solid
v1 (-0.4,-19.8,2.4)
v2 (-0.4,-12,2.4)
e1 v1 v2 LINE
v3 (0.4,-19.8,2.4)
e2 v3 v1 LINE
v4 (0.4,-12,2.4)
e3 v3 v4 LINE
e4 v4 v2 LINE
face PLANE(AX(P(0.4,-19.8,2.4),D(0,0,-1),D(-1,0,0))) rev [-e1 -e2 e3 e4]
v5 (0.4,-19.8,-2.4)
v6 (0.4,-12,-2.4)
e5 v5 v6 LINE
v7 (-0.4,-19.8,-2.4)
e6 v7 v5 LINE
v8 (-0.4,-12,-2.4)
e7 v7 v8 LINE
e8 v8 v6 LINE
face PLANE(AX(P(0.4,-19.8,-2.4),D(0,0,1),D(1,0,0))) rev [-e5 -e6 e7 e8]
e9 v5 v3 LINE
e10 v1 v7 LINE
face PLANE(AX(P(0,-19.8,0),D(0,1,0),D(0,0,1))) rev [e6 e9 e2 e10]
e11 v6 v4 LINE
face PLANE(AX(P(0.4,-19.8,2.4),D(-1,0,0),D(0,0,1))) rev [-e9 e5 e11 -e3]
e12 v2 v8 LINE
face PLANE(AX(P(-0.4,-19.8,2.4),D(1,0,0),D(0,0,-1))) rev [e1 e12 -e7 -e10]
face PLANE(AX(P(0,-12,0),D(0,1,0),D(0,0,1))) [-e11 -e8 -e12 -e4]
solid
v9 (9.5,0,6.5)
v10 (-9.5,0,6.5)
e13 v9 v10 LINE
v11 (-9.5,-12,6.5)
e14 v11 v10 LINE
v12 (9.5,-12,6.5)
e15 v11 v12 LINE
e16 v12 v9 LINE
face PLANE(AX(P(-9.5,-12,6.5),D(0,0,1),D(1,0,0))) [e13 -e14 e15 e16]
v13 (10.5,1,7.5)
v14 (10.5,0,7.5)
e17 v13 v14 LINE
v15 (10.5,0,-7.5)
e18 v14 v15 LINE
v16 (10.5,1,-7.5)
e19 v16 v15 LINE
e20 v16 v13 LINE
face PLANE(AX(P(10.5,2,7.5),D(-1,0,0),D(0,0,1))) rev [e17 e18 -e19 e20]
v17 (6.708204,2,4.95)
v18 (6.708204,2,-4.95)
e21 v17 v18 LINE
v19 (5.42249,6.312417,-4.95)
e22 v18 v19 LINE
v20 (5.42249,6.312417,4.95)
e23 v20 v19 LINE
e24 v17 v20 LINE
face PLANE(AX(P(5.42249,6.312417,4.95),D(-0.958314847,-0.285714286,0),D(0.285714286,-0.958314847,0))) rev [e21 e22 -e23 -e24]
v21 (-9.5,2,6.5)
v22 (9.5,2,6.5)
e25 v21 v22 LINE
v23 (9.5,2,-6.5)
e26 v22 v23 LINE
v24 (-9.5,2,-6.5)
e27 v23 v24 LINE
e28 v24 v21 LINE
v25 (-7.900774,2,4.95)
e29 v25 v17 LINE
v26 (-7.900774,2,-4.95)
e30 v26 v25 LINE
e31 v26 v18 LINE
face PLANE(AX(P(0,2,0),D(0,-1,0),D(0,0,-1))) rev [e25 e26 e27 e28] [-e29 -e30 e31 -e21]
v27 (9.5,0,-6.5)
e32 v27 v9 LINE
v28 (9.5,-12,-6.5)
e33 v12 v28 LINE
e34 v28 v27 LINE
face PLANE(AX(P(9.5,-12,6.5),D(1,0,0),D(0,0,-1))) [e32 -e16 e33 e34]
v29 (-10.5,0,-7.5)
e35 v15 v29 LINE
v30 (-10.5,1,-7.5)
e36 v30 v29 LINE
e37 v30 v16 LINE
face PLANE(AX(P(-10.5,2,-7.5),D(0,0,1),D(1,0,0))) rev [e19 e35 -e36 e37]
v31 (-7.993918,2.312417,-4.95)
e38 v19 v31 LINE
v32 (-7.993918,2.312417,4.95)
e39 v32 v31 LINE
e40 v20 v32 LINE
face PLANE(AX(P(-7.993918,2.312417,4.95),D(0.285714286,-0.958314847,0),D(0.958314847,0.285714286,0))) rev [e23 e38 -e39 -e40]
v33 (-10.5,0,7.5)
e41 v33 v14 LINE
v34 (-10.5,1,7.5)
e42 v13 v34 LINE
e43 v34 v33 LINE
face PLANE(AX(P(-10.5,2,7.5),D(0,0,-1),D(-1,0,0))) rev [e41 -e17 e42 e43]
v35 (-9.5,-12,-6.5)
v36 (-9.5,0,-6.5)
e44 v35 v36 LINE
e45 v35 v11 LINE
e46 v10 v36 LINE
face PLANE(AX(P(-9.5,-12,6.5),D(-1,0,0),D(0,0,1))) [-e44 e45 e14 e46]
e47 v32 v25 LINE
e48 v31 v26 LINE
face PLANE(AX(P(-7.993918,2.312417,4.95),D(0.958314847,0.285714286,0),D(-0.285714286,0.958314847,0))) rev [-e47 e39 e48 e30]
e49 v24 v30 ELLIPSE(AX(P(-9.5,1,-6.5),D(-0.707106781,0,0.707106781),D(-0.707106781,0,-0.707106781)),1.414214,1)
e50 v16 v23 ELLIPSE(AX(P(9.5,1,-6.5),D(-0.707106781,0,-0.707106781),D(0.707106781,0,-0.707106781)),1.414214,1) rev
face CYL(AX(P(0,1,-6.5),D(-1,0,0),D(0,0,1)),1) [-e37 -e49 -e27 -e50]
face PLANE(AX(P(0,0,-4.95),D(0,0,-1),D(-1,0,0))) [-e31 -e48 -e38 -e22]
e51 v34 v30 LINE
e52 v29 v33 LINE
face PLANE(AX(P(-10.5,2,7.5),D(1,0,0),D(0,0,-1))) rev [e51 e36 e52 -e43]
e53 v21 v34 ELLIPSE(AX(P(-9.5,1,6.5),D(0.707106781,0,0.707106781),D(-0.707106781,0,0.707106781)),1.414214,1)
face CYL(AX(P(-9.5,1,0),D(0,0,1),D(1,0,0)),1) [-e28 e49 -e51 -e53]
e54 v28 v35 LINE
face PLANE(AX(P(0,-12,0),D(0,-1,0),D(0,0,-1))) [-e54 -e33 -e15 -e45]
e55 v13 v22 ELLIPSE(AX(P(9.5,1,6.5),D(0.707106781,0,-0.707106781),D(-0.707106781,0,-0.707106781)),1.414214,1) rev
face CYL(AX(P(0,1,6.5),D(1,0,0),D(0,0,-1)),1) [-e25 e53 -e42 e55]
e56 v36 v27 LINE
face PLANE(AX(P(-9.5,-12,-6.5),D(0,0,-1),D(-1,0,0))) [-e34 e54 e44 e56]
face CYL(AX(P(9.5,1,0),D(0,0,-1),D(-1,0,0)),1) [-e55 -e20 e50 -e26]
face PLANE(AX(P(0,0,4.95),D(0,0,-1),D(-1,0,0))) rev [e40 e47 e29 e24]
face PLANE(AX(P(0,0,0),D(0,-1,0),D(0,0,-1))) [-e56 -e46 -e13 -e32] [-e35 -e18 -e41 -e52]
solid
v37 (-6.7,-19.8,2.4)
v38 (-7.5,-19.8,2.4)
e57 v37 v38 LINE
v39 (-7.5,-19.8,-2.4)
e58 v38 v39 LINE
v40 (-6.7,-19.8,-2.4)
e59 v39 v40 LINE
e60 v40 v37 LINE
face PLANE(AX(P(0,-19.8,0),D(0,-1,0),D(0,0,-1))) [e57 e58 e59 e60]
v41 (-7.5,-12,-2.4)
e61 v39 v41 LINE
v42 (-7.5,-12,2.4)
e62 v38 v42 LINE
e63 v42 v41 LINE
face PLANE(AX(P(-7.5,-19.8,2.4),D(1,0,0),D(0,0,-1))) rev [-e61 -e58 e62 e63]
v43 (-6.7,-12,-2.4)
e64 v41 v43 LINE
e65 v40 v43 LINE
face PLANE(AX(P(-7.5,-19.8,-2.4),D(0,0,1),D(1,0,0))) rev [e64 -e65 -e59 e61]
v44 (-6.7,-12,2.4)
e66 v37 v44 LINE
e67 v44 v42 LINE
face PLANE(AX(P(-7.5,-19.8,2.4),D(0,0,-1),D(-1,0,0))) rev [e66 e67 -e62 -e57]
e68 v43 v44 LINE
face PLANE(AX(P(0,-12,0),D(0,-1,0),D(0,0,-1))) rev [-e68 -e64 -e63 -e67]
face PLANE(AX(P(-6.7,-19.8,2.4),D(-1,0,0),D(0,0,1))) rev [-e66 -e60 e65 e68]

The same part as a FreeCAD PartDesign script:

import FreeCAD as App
import Part
import Sketcher

V = App.Vector
Q = App.Units.Quantity


def edges_at(feature, points):
    """Names of the edges that pass closest to the given points."""
    edges = feature.Shape.Edges
    near = lambda p: min(range(len(edges)), key=lambda i: edges[i].distToShape(Part.Vertex(*p))[0])
    return sorted({f"Edge{near(p) + 1}" for p in points})


def add_polygon(sketch, points):
    """Adds a closed chain of lines whose ends are joined by coincident constraints."""
    first, n = sketch.GeometryCount, len(points)
    for a, b in zip(points, points[1:] + points[:1]):
        sketch.addGeometry(Part.LineSegment(App.Vector(*a, 0), App.Vector(*b, 0)), False)
    for i in range(n):
        sketch.addConstraint(Sketcher.Constraint("Coincident", first + i, 2, first + (i + 1) % n, 1))

doc = App.newDocument("Part")
params = doc.addObject("Spreadsheet::Sheet", "Params")
for row, (alias, value) in enumerate([
    ("sketch1_width", "21 mm"),
    ("sketch1_height", "15 mm"),
    ("pad1_length", "2 mm"),
    ("sketch2_width", "19 mm"),
    ("sketch2_height", "13 mm"),
    ("pad2_length", "14 mm"),
    ("fillet_radius", "1 mm"),
    ("sketch3_length", "14 mm"),
    ("sketch3_length2", "4.5 mm"),
    ("pad3_length", "9.9 mm"),
    ("sketch4_width", "0.8 mm"),
    ("sketch4_height", "4.8 mm"),
    ("pad4_length", "7.8 mm"),
    ("sketch5_width", "0.8 mm"),
    ("sketch5_height", "4.8 mm"),
    ("pad5_length", "7.8 mm"),
], start=1):
    params.set(f"A{row}", alias)
    params.set(f"B{row}", "=" + value)
    params.setAlias(f"B{row}", alias)

body = doc.addObject("PartDesign::Body", "Body")

# Sketch on XZ plane
sketch1 = body.newObject("Sketcher::SketchObject", "Sketch")
sketch1.AttachmentSupport = (doc.getObject("XZ_Plane"), [""])
sketch1.MapMode = "FlatFace"
add_polygon(sketch1, [(-10.5, -7.5), (-10.5, 7.5), (10.5, 7.5), (10.5, -7.5)])  # lines 0-3
sketch1.addConstraint(Sketcher.Constraint("Vertical", 0))
sketch1.addConstraint(Sketcher.Constraint("Horizontal", 1))
sketch1.addConstraint(Sketcher.Constraint("Vertical", 2))
sketch1.addConstraint(Sketcher.Constraint("Horizontal", 3))
sketch1.addConstraint(Sketcher.Constraint("Symmetric", 0, 2, 2, 2, -1, 1))
sketch1.addConstraint(Sketcher.Constraint("DistanceX", 1, 1, 1, 2, Q("21 mm")))
sketch1.addConstraint(Sketcher.Constraint("DistanceY", 0, 1, 0, 2, Q("15 mm")))
sketch1.setExpression("Constraints[9]", "Params.sketch1_width")
sketch1.setExpression("Constraints[10]", "Params.sketch1_height")
pad1 = body.newObject("PartDesign::Pad", "Pad")
pad1.Profile = sketch1
pad1.setExpression("Length", "Params.pad1_length")
pad1.Reversed = True

# Sketch on XZ plane
sketch2 = body.newObject("Sketcher::SketchObject", "Sketch001")
sketch2.AttachmentSupport = (doc.getObject("XZ_Plane"), [""])
sketch2.MapMode = "FlatFace"
sketch2.AttachmentOffset = App.Placement(V(0, 0, -2), App.Rotation())
add_polygon(sketch2, [(-9.5, -6.5), (-9.5, 6.5), (9.5, 6.5), (9.5, -6.5)])  # lines 0-3
sketch2.addConstraint(Sketcher.Constraint("Vertical", 0))
sketch2.addConstraint(Sketcher.Constraint("Horizontal", 1))
sketch2.addConstraint(Sketcher.Constraint("Vertical", 2))
sketch2.addConstraint(Sketcher.Constraint("Horizontal", 3))
sketch2.addConstraint(Sketcher.Constraint("Symmetric", 0, 2, 2, 2, -1, 1))
sketch2.addConstraint(Sketcher.Constraint("DistanceX", 1, 1, 1, 2, Q("19 mm")))
sketch2.addConstraint(Sketcher.Constraint("DistanceY", 0, 1, 0, 2, Q("13 mm")))
sketch2.setExpression("Constraints[9]", "Params.sketch2_width")
sketch2.setExpression("Constraints[10]", "Params.sketch2_height")
pad2 = body.newObject("PartDesign::Pad", "Pad001")
pad2.Profile = sketch2
pad2.setExpression("Length", "Params.pad2_length")
doc.recompute()

fillet = body.newObject("PartDesign::Fillet", "Fillet")
fillet.Base = (pad2, edges_at(pad2, [
    (-10.5, 2, 0),
    (0, 2, 7.5),
    (10.5, 2, 0),
    (0, 2, -7.5),
]))
fillet.setExpression("Radius", "Params.fillet_radius")

# Sketch on XY plane
sketch3 = body.newObject("Sketcher::SketchObject", "Sketch002")
sketch3.AttachmentSupport = (doc.getObject("XY_Plane"), [""])
sketch3.MapMode = "FlatFace"
add_polygon(sketch3, [(-7.993918, 2.312417), (-6.708204, -2), (6.708204, 2), (5.42249, 6.312417)])  # lines 0-3
sketch3.addConstraint(Sketcher.Constraint("Symmetric", 0, 2, 1, 2, -1, 1))
sketch3.addConstraint(Sketcher.Constraint("Perpendicular", 0, 1))
sketch3.addConstraint(Sketcher.Constraint("Perpendicular", 1, 2))
sketch3.addConstraint(Sketcher.Constraint("Perpendicular", 2, 3))
sketch3.addConstraint(Sketcher.Constraint("Distance", 1, Q("14 mm")))
sketch3.addConstraint(Sketcher.Constraint("DistanceY", 0, 2, -1, 1, Q("2 mm")))
sketch3.addConstraint(Sketcher.Constraint("Distance", 0, Q("4.5 mm")))
sketch3.setExpression("Constraints[8]", "Params.sketch3_length")
sketch3.setExpression("Constraints[10]", "Params.sketch3_length2")
pad3 = body.newObject("PartDesign::Pad", "Pad002")
pad3.Profile = sketch3
pad3.setExpression("Length", "Params.pad3_length")
pad3.Midplane = True
body2 = doc.addObject("PartDesign::Body", "Body001")

# Sketch on XZ plane
sketch4 = body2.newObject("Sketcher::SketchObject", "Sketch003")
sketch4.AttachmentSupport = (doc.getObject("XZ_Plane001"), [""])
sketch4.MapMode = "FlatFace"
sketch4.AttachmentOffset = App.Placement(V(0, 0, 12), App.Rotation())
add_polygon(sketch4, [(-7.5, 2.4), (-7.5, -2.4), (-6.7, -2.4), (-6.7, 2.4)])  # lines 0-3
sketch4.addConstraint(Sketcher.Constraint("Vertical", 0))
sketch4.addConstraint(Sketcher.Constraint("Horizontal", 1))
sketch4.addConstraint(Sketcher.Constraint("Vertical", 2))
sketch4.addConstraint(Sketcher.Constraint("Horizontal", 3))
sketch4.addConstraint(Sketcher.Constraint("DistanceX", 1, 1, 1, 2, Q("0.8 mm")))
sketch4.addConstraint(Sketcher.Constraint("DistanceY", 0, 2, 0, 1, Q("4.8 mm")))
sketch4.addConstraint(Sketcher.Constraint("DistanceX", 0, 2, -1, 1, Q("7.5 mm")))
sketch4.addConstraint(Sketcher.Constraint("DistanceY", 0, 2, -1, 1, Q("2.4 mm")))
sketch4.setExpression("Constraints[8]", "Params.sketch4_width")
sketch4.setExpression("Constraints[9]", "Params.sketch4_height")
pad4 = body2.newObject("PartDesign::Pad", "Pad003")
pad4.Profile = sketch4
pad4.setExpression("Length", "Params.pad4_length")
body3 = doc.addObject("PartDesign::Body", "Body002")

# Sketch on XZ plane
sketch5 = body3.newObject("Sketcher::SketchObject", "Sketch004")
sketch5.AttachmentSupport = (doc.getObject("XZ_Plane002"), [""])
sketch5.MapMode = "FlatFace"
sketch5.AttachmentOffset = App.Placement(V(0, 0, 12), App.Rotation())
add_polygon(sketch5, [(-0.4, 2.4), (-0.4, -2.4), (0.4, -2.4), (0.4, 2.4)])  # lines 0-3
sketch5.addConstraint(Sketcher.Constraint("Vertical", 0))
sketch5.addConstraint(Sketcher.Constraint("Horizontal", 1))
sketch5.addConstraint(Sketcher.Constraint("Vertical", 2))
sketch5.addConstraint(Sketcher.Constraint("Horizontal", 3))
sketch5.addConstraint(Sketcher.Constraint("Symmetric", 0, 2, 2, 2, -1, 1))
sketch5.addConstraint(Sketcher.Constraint("DistanceX", 1, 1, 1, 2, Q("0.8 mm")))
sketch5.addConstraint(Sketcher.Constraint("DistanceY", 0, 2, 0, 1, Q("4.8 mm")))
sketch5.setExpression("Constraints[9]", "Params.sketch5_width")
sketch5.setExpression("Constraints[10]", "Params.sketch5_height")
pad5 = body3.newObject("PartDesign::Pad", "Pad004")
pad5.Profile = sketch5
pad5.setExpression("Length", "Params.pad5_length")

doc.recompute()
